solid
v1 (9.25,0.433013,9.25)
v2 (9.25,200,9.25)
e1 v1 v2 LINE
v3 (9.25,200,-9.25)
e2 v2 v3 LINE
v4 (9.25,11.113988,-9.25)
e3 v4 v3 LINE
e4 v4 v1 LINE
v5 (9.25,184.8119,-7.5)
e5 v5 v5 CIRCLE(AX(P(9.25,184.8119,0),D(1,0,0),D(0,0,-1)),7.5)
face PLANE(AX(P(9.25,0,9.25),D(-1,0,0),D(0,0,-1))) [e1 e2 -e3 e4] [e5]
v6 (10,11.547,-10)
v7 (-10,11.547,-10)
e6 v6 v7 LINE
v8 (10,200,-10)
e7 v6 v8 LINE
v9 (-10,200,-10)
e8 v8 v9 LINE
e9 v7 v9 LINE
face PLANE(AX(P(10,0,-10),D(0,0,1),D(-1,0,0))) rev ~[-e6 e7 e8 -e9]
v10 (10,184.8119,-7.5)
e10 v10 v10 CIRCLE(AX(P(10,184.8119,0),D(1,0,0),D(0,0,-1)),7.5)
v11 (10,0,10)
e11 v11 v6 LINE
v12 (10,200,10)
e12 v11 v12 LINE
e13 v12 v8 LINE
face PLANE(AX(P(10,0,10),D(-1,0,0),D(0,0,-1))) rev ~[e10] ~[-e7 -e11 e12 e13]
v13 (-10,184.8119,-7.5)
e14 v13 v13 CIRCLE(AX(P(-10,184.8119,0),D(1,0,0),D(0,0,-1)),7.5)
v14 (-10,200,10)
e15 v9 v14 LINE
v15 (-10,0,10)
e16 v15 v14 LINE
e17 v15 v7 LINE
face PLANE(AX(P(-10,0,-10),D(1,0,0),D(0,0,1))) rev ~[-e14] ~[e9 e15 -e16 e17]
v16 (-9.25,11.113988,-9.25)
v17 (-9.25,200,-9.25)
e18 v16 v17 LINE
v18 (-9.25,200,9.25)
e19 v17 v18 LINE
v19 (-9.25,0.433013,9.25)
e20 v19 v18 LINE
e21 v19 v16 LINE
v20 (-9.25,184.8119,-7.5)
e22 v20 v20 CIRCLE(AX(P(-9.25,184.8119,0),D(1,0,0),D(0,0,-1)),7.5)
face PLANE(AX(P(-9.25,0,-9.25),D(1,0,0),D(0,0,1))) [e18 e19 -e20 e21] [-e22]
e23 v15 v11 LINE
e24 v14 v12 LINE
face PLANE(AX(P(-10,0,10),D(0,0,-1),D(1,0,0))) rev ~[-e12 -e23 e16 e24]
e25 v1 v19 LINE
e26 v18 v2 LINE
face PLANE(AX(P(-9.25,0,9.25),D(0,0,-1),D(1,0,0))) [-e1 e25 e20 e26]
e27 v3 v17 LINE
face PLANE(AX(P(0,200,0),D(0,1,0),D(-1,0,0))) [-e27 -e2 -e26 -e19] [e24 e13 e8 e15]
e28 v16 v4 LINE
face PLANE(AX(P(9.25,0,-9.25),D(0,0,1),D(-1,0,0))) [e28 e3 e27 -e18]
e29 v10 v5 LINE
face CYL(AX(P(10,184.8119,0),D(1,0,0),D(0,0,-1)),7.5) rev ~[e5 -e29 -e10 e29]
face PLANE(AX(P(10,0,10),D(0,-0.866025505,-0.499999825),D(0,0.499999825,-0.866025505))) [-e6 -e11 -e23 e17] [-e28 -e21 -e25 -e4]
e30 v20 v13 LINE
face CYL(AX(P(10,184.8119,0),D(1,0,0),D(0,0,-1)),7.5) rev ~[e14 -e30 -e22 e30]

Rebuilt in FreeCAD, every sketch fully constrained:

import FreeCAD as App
import Part
import Sketcher

V = App.Vector
Q = App.Units.Quantity


def add_polygon(sketch, points):
    """Adds a closed chain of lines whose ends are joined by coincident constraints."""
    first, n = sketch.GeometryCount, len(points)
    for a, b in zip(points, points[1:] + points[:1]):
        sketch.addGeometry(Part.LineSegment(App.Vector(*a, 0), App.Vector(*b, 0)), False)
    for i in range(n):
        sketch.addConstraint(Sketcher.Constraint("Coincident", first + i, 2, first + (i + 1) % n, 1))

doc = App.newDocument("Part")
body = doc.addObject("PartDesign::Body", "Body")

# Sketch on XZ plane
sketch1 = body.newObject("Sketcher::SketchObject", "Sketch")
sketch1.AttachmentSupport = (doc.getObject("XZ_Plane"), [""])
sketch1.MapMode = "FlatFace"
add_polygon(sketch1, [(10, 10), (10, -10), (-10, -10), (-10, 10)])  # lines 0-3
add_polygon(sketch1, [(-9, -9), (9, -9), (9, 9), (-9, 9)])  # lines 4-7
sketch1.addConstraint([
    Sketcher.Constraint("Vertical", 0),
    Sketcher.Constraint("Horizontal", 1),
    Sketcher.Constraint("Vertical", 2),
    Sketcher.Constraint("Horizontal", 3),
    Sketcher.Constraint("Horizontal", 4),
    Sketcher.Constraint("Vertical", 5),
    Sketcher.Constraint("Horizontal", 6),
    Sketcher.Constraint("Vertical", 7),
    Sketcher.Constraint("Symmetric", 0, 2, 2, 2, -1, 1),
    Sketcher.Constraint("Symmetric", 4, 2, 6, 2, -1, 1),
    Sketcher.Constraint("Equal", 3, 0),
    Sketcher.Constraint("Equal", 6, 5),
    Sketcher.Constraint("DistanceX", 1, 2, 1, 1, Q("20 mm")),
    Sketcher.Constraint("DistanceX", 4, 1, 4, 2, Q("18.5 mm")),
])
pad1 = body.newObject("PartDesign::Pad", "Pad")
pad1.Profile = sketch1
pad1.Length = 200
pad1.Reversed = True

# Sketch on YZ plane
sketch2 = body.newObject("Sketcher::SketchObject", "Sketch001")
sketch2.AttachmentSupport = (doc.getObject("YZ_Plane"), [""])
sketch2.MapMode = "FlatFace"
sketch2.AttachmentOffset = App.Placement(V(0, 0, 10), App.Rotation())
add_polygon(sketch2, [(12, -10), (0, 10), (0, -10)])  # lines 0-2
sketch2.addConstraint([
    Sketcher.Constraint("Vertical", 1),
    Sketcher.Constraint("Horizontal", 2),
    Sketcher.Constraint("Symmetric", 0, 2, 1, 2, -1, 1),
    Sketcher.Constraint("DistanceY", 1, 2, 1, 1, Q("20 mm")),
    Sketcher.Constraint("Angle", 0, Q("120 deg")),
])
pocket1 = body.newObject("PartDesign::Pocket", "Pocket")
pocket1.Profile = sketch2
pocket1.Length = 200

# Sketch on YZ plane
sketch3 = body.newObject("Sketcher::SketchObject", "Sketch002")
sketch3.AttachmentSupport = (doc.getObject("YZ_Plane"), [""])
sketch3.MapMode = "FlatFace"
sketch3.AttachmentOffset = App.Placement(V(0, 0, 10), App.Rotation())
sketch3.addGeometry(Part.Circle(V(185, 0, 0), V(0, 0, 1), 8), False)
sketch3.addConstraint([
    Sketcher.Constraint("PointOnObject", 0, 3, -1),
    Sketcher.Constraint("Diameter", 0, Q("15 mm")),
    Sketcher.Constraint("DistanceX", -1, 1, 0, 3, Q("184.812 mm")),
])
pocket2 = body.newObject("PartDesign::Pocket", "Pocket001")
pocket2.Profile = sketch3
pocket2.Length = 124

doc.recompute()
